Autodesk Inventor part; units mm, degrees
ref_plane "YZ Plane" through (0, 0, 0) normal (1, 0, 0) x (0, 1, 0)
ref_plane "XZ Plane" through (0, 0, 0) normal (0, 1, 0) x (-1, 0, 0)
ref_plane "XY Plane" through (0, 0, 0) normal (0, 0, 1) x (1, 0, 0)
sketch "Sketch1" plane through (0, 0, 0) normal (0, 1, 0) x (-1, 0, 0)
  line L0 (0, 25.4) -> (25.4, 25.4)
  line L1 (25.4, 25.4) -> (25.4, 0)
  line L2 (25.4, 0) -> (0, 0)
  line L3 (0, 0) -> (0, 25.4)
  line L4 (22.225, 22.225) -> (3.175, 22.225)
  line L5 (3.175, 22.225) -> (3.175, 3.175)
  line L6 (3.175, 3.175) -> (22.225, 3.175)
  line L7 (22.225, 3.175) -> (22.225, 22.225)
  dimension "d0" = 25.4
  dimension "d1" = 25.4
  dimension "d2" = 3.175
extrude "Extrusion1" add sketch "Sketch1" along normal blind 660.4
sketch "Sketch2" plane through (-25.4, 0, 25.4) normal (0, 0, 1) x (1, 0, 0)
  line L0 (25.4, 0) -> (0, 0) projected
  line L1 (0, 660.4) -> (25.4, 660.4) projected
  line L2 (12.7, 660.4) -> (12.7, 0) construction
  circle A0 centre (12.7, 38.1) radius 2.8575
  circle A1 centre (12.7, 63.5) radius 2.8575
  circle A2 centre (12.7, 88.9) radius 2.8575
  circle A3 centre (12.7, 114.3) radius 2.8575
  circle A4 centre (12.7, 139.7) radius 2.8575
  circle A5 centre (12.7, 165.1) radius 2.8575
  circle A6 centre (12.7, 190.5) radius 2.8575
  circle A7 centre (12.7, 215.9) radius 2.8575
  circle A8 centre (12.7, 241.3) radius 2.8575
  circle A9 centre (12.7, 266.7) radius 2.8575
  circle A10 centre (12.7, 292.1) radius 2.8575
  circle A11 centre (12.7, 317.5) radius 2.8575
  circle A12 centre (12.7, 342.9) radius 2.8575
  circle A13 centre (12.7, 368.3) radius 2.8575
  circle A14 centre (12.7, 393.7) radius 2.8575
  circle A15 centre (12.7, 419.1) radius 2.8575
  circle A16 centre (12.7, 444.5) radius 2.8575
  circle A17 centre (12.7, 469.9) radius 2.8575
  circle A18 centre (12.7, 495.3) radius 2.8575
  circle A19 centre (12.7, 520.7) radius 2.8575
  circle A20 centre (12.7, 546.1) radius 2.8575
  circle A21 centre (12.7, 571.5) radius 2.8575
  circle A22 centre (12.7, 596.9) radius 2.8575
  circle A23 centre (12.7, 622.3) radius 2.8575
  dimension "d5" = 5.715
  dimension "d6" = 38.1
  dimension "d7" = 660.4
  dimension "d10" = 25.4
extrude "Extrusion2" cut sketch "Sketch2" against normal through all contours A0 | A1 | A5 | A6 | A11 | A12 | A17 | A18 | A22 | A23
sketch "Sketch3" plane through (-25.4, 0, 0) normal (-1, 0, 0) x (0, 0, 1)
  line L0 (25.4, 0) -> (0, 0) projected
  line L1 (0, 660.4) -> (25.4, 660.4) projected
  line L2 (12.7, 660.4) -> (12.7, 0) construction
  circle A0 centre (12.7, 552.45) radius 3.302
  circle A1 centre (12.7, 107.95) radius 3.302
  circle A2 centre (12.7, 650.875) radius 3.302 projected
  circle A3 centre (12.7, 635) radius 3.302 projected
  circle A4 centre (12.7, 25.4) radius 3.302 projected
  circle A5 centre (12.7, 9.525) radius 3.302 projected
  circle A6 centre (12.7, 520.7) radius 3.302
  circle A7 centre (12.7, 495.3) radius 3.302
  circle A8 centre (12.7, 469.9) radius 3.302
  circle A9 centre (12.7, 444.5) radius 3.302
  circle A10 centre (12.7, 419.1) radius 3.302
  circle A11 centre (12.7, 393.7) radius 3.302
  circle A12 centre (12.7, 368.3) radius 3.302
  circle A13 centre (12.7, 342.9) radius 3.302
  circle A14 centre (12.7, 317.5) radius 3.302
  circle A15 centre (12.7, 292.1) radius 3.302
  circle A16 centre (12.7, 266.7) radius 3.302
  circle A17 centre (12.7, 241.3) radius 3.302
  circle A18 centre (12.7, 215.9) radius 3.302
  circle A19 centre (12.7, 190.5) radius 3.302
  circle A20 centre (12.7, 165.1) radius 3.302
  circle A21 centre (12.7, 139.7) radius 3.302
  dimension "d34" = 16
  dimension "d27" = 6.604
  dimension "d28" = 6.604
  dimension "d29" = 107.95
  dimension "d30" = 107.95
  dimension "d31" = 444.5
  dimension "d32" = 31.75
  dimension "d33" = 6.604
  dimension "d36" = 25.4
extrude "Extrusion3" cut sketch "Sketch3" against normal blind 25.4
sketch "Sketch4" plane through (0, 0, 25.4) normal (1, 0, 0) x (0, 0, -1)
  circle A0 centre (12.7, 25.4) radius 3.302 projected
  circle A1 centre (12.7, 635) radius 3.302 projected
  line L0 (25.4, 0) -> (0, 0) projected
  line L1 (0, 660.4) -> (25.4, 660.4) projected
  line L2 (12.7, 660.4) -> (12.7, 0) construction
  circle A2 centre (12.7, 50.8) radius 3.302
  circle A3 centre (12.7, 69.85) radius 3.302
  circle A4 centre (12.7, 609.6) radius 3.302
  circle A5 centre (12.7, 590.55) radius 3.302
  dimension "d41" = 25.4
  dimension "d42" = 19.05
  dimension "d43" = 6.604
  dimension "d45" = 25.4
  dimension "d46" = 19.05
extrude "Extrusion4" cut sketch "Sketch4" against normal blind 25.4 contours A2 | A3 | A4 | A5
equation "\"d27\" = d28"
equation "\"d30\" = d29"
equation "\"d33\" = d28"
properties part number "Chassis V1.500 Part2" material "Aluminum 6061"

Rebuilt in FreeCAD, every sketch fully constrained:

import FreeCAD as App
import Part
import Sketcher
from FreeCAD import Vector
Q = App.Units.Quantity

doc = App.newDocument("Part")
body = doc.addObject("PartDesign::Body", "Body")

# Sketch on XZ plane
sketch1 = doc.addObject("Sketcher::SketchObject", "Sketch")
body.addObject(sketch1)
sketch1.AttachmentSupport = (doc.XZ_Plane, [""])
sketch1.MapMode = "FlatFace"
sketch1.addGeometry(Part.LineSegment(Vector(-25.4, 25.4, 0), Vector(0, 25.4, 0)), False)
sketch1.addGeometry(Part.LineSegment(Vector(0, 25.4, 0), Vector(0, 0, 0)), False)
sketch1.addGeometry(Part.LineSegment(Vector(0, 0, 0), Vector(-25.4, 0, 0)), False)
sketch1.addGeometry(Part.LineSegment(Vector(-25.4, 0, 0), Vector(-25.4, 25.4, 0)), False)
sketch1.addGeometry(Part.LineSegment(Vector(-3.175, 22.225, 0), Vector(-22.225, 22.225, 0)), False)
sketch1.addGeometry(Part.LineSegment(Vector(-22.225, 22.225, 0), Vector(-22.225, 3.175, 0)), False)
sketch1.addGeometry(Part.LineSegment(Vector(-22.225, 3.175, 0), Vector(-3.175, 3.175, 0)), False)
sketch1.addGeometry(Part.LineSegment(Vector(-3.175, 3.175, 0), Vector(-3.175, 22.225, 0)), False)
sketch1.addConstraint(Sketcher.Constraint("Coincident", 0, 2, 1, 1))
sketch1.addConstraint(Sketcher.Constraint("Coincident", 1, 2, 2, 1))
sketch1.addConstraint(Sketcher.Constraint("Coincident", 2, 2, 3, 1))
sketch1.addConstraint(Sketcher.Constraint("Coincident", 3, 2, 0, 1))
sketch1.addConstraint(Sketcher.Constraint("Coincident", 4, 2, 5, 1))
sketch1.addConstraint(Sketcher.Constraint("Coincident", 5, 2, 6, 1))
sketch1.addConstraint(Sketcher.Constraint("Coincident", 6, 2, 7, 1))
sketch1.addConstraint(Sketcher.Constraint("Coincident", 7, 2, 4, 1))
sketch1.addConstraint(Sketcher.Constraint("Horizontal", 0))
sketch1.addConstraint(Sketcher.Constraint("Vertical", 1))
sketch1.addConstraint(Sketcher.Constraint("Horizontal", 2))
sketch1.addConstraint(Sketcher.Constraint("Vertical", 3))
sketch1.addConstraint(Sketcher.Constraint("Horizontal", 4))
sketch1.addConstraint(Sketcher.Constraint("Vertical", 5))
sketch1.addConstraint(Sketcher.Constraint("Horizontal", 6))
sketch1.addConstraint(Sketcher.Constraint("Vertical", 7))
sketch1.addConstraint(Sketcher.Constraint("Coincident", 1, 2, -1, 1))
sketch1.addConstraint(Sketcher.Constraint("Equal", 2, 1))
sketch1.addConstraint(Sketcher.Constraint("Equal", 6, 5))
sketch1.addConstraint(Sketcher.Constraint("DistanceX", 0, 1, 0, 2, Q("1 in")))
sketch1.addConstraint(Sketcher.Constraint("DistanceY", -1, 1, 5, 2, Q("0.125 in")))
sketch1.addConstraint(Sketcher.Constraint("DistanceX", 6, 2, -1, 1, Q("0.125 in")))
sketch1.addConstraint(Sketcher.Constraint("DistanceX", 3, 2, 4, 2, Q("0.125 in")))
pad1 = doc.addObject("PartDesign::Pad", "Pad")
body.addObject(pad1)
pad1.Profile = sketch1
pad1.Length = Q("26 in")
pad1.Reversed = True

# Sketch on XY plane
sketch2 = doc.addObject("Sketcher::SketchObject", "Sketch001")
body.addObject(sketch2)
sketch2.AttachmentSupport = (doc.XY_Plane, [""])
sketch2.MapMode = "FlatFace"
sketch2.AttachmentOffset = App.Placement(Vector(0, 0, 1 * 25.4), App.Rotation())
sketch2.addGeometry(Part.Circle(Vector(-12.7, 38.1, 0), Vector(0, 0, 1), 2.8575), False)
sketch2.addGeometry(Part.Circle(Vector(-12.7, 63.5, 0), Vector(0, 0, 1), 2.8575), False)
sketch2.addGeometry(Part.Circle(Vector(-12.7, 165.1, 0), Vector(0, 0, 1), 2.8575), False)
sketch2.addGeometry(Part.Circle(Vector(-12.7, 190.5, 0), Vector(0, 0, 1), 2.8575), False)
sketch2.addGeometry(Part.Circle(Vector(-12.7, 317.5, 0), Vector(0, 0, 1), 2.8575), False)
sketch2.addGeometry(Part.Circle(Vector(-12.7, 342.9, 0), Vector(0, 0, 1), 2.8575), False)
sketch2.addGeometry(Part.Circle(Vector(-12.7, 469.9, 0), Vector(0, 0, 1), 2.8575), False)
sketch2.addGeometry(Part.Circle(Vector(-12.7, 495.3, 0), Vector(0, 0, 1), 2.8575), False)
sketch2.addGeometry(Part.Circle(Vector(-12.7, 596.9, 0), Vector(0, 0, 1), 2.8575), False)
sketch2.addGeometry(Part.Circle(Vector(-12.7, 622.3, 0), Vector(0, 0, 1), 2.8575), False)
sketch2.addConstraint(Sketcher.Constraint("Equal", 0, 1))
sketch2.addConstraint(Sketcher.Constraint("Equal", 1, 2))
sketch2.addConstraint(Sketcher.Constraint("Equal", 2, 3))
sketch2.addConstraint(Sketcher.Constraint("Equal", 3, 4))
sketch2.addConstraint(Sketcher.Constraint("Equal", 4, 5))
sketch2.addConstraint(Sketcher.Constraint("Equal", 5, 6))
sketch2.addConstraint(Sketcher.Constraint("Equal", 6, 7))
sketch2.addConstraint(Sketcher.Constraint("Equal", 7, 8))
sketch2.addConstraint(Sketcher.Constraint("Equal", 8, 9))
sketch2.addConstraint(Sketcher.Constraint("Vertical", 0, 3, 1, 3))
sketch2.addConstraint(Sketcher.Constraint("Vertical", 1, 3, 2, 3))
sketch2.addConstraint(Sketcher.Constraint("Vertical", 2, 3, 3, 3))
sketch2.addConstraint(Sketcher.Constraint("Vertical", 3, 3, 4, 3))
sketch2.addConstraint(Sketcher.Constraint("Vertical", 4, 3, 5, 3))
sketch2.addConstraint(Sketcher.Constraint("Vertical", 5, 3, 6, 3))
sketch2.addConstraint(Sketcher.Constraint("Vertical", 6, 3, 7, 3))
sketch2.addConstraint(Sketcher.Constraint("Vertical", 7, 3, 8, 3))
sketch2.addConstraint(Sketcher.Constraint("Vertical", 8, 3, 9, 3))
sketch2.addConstraint(Sketcher.Constraint("Diameter", 0, Q("0.225 in")))
sketch2.addConstraint(Sketcher.Constraint("DistanceY", 0, 3, 1, 3, Q("1 in")))
sketch2.addConstraint(Sketcher.Constraint("DistanceY", 2, 3, 3, 3, Q("1 in")))
sketch2.addConstraint(Sketcher.Constraint("DistanceY", 4, 3, 5, 3, Q("1 in")))
sketch2.addConstraint(Sketcher.Constraint("DistanceY", 6, 3, 7, 3, Q("1 in")))
sketch2.addConstraint(Sketcher.Constraint("DistanceY", 8, 3, 9, 3, Q("1 in")))
sketch2.addConstraint(Sketcher.Constraint("DistanceY", -1, 1, 0, 3, Q("1.5 in")))
sketch2.addConstraint(Sketcher.Constraint("DistanceY", 1, 3, 2, 3, Q("4 in")))
sketch2.addConstraint(Sketcher.Constraint("DistanceY", 3, 3, 4, 3, Q("5 in")))
sketch2.addConstraint(Sketcher.Constraint("DistanceY", 5, 3, 6, 3, Q("5 in")))
sketch2.addConstraint(Sketcher.Constraint("DistanceY", 7, 3, 8, 3, Q("4 in")))
sketch2.addConstraint(Sketcher.Constraint("DistanceX", 0, 3, -1, 1, Q("0.5 in")))
pocket1 = doc.addObject("PartDesign::Pocket", "Pocket")
body.addObject(pocket1)
pocket1.Profile = sketch2
pocket1.Type = "ThroughAll"

# Sketch on YZ plane
sketch3 = doc.addObject("Sketcher::SketchObject", "Sketch002")
body.addObject(sketch3)
sketch3.AttachmentSupport = (doc.YZ_Plane, [""])
sketch3.MapMode = "FlatFace"
sketch3.AttachmentOffset = App.Placement(Vector(0, 0, -1 * 25.4), App.Rotation())
sketch3.addGeometry(Part.Circle(Vector(552.45, 12.7, 0), Vector(0, 0, 1), 3.302), False)
sketch3.addGeometry(Part.Circle(Vector(107.95, 12.7, 0), Vector(0, 0, 1), 3.302), False)
sketch3.addGeometry(Part.Circle(Vector(650.875, 12.7, 0), Vector(0, 0, 1), 3.302), False)
sketch3.addGeometry(Part.Circle(Vector(635, 12.7, 0), Vector(0, 0, 1), 3.302), False)
sketch3.addGeometry(Part.Circle(Vector(25.4, 12.7, 0), Vector(0, 0, 1), 3.302), False)
sketch3.addGeometry(Part.Circle(Vector(9.525, 12.7, 0), Vector(0, 0, 1), 3.302), False)
sketch3.addGeometry(Part.Circle(Vector(520.7, 12.7, 0), Vector(0, 0, 1), 3.302), False)
sketch3.addGeometry(Part.Circle(Vector(495.3, 12.7, 0), Vector(0, 0, 1), 3.302), False)
sketch3.addGeometry(Part.Circle(Vector(469.9, 12.7, 0), Vector(0, 0, 1), 3.302), False)
sketch3.addGeometry(Part.Circle(Vector(444.5, 12.7, 0), Vector(0, 0, 1), 3.302), False)
sketch3.addGeometry(Part.Circle(Vector(419.1, 12.7, 0), Vector(0, 0, 1), 3.302), False)
sketch3.addGeometry(Part.Circle(Vector(393.7, 12.7, 0), Vector(0, 0, 1), 3.302), False)
sketch3.addGeometry(Part.Circle(Vector(368.3, 12.7, 0), Vector(0, 0, 1), 3.302), False)
sketch3.addGeometry(Part.Circle(Vector(342.9, 12.7, 0), Vector(0, 0, 1), 3.302), False)
sketch3.addGeometry(Part.Circle(Vector(317.5, 12.7, 0), Vector(0, 0, 1), 3.302), False)
sketch3.addGeometry(Part.Circle(Vector(292.1, 12.7, 0), Vector(0, 0, 1), 3.302), False)
sketch3.addGeometry(Part.Circle(Vector(266.7, 12.7, 0), Vector(0, 0, 1), 3.302), False)
sketch3.addGeometry(Part.Circle(Vector(241.3, 12.7, 0), Vector(0, 0, 1), 3.302), False)
sketch3.addGeometry(Part.Circle(Vector(215.9, 12.7, 0), Vector(0, 0, 1), 3.302), False)
sketch3.addGeometry(Part.Circle(Vector(190.5, 12.7, 0), Vector(0, 0, 1), 3.302), False)
sketch3.addGeometry(Part.Circle(Vector(165.1, 12.7, 0), Vector(0, 0, 1), 3.302), False)
sketch3.addGeometry(Part.Circle(Vector(139.7, 12.7, 0), Vector(0, 0, 1), 3.302), False)
sketch3.addConstraint(Sketcher.Constraint("Equal", 0, 1))
sketch3.addConstraint(Sketcher.Constraint("Equal", 1, 2))
sketch3.addConstraint(Sketcher.Constraint("Equal", 2, 3))
sketch3.addConstraint(Sketcher.Constraint("Equal", 3, 4))
sketch3.addConstraint(Sketcher.Constraint("Equal", 4, 5))
sketch3.addConstraint(Sketcher.Constraint("Equal", 5, 6))
sketch3.addConstraint(Sketcher.Constraint("Equal", 6, 7))
sketch3.addConstraint(Sketcher.Constraint("Equal", 7, 8))
sketch3.addConstraint(Sketcher.Constraint("Equal", 8, 9))
sketch3.addConstraint(Sketcher.Constraint("Equal", 9, 10))
sketch3.addConstraint(Sketcher.Constraint("Equal", 10, 11))
sketch3.addConstraint(Sketcher.Constraint("Equal", 11, 12))
sketch3.addConstraint(Sketcher.Constraint("Equal", 12, 13))
sketch3.addConstraint(Sketcher.Constraint("Equal", 13, 14))
sketch3.addConstraint(Sketcher.Constraint("Equal", 14, 15))
sketch3.addConstraint(Sketcher.Constraint("Equal", 15, 16))
sketch3.addConstraint(Sketcher.Constraint("Equal", 16, 17))
sketch3.addConstraint(Sketcher.Constraint("Equal", 17, 18))
sketch3.addConstraint(Sketcher.Constraint("Equal", 18, 19))
sketch3.addConstraint(Sketcher.Constraint("Equal", 19, 20))
sketch3.addConstraint(Sketcher.Constraint("Equal", 20, 21))
sketch3.addConstraint(Sketcher.Constraint("Horizontal", 0, 3, 1, 3))
sketch3.addConstraint(Sketcher.Constraint("Horizontal", 1, 3, 2, 3))
sketch3.addConstraint(Sketcher.Constraint("Horizontal", 2, 3, 3, 3))
sketch3.addConstraint(Sketcher.Constraint("Horizontal", 3, 3, 4, 3))
sketch3.addConstraint(Sketcher.Constraint("Horizontal", 4, 3, 5, 3))
sketch3.addConstraint(Sketcher.Constraint("Horizontal", 5, 3, 6, 3))
sketch3.addConstraint(Sketcher.Constraint("Horizontal", 6, 3, 7, 3))
sketch3.addConstraint(Sketcher.Constraint("Horizontal", 7, 3, 8, 3))
sketch3.addConstraint(Sketcher.Constraint("Horizontal", 8, 3, 9, 3))
sketch3.addConstraint(Sketcher.Constraint("Horizontal", 9, 3, 10, 3))
sketch3.addConstraint(Sketcher.Constraint("Horizontal", 10, 3, 11, 3))
sketch3.addConstraint(Sketcher.Constraint("Horizontal", 11, 3, 12, 3))
sketch3.addConstraint(Sketcher.Constraint("Horizontal", 12, 3, 13, 3))
sketch3.addConstraint(Sketcher.Constraint("Horizontal", 13, 3, 14, 3))
sketch3.addConstraint(Sketcher.Constraint("Horizontal", 14, 3, 15, 3))
sketch3.addConstraint(Sketcher.Constraint("Horizontal", 15, 3, 16, 3))
sketch3.addConstraint(Sketcher.Constraint("Horizontal", 16, 3, 17, 3))
sketch3.addConstraint(Sketcher.Constraint("Horizontal", 17, 3, 18, 3))
sketch3.addConstraint(Sketcher.Constraint("Horizontal", 18, 3, 19, 3))
sketch3.addConstraint(Sketcher.Constraint("Horizontal", 19, 3, 20, 3))
sketch3.addConstraint(Sketcher.Constraint("Horizontal", 20, 3, 21, 3))
sketch3.addConstraint(Sketcher.Constraint("Diameter", 0, Q("0.26 in")))
sketch3.addConstraint(Sketcher.Constraint("DistanceX", -1, 1, 4, 3, Q("1 in")))
sketch3.addConstraint(Sketcher.Constraint("DistanceX", 7, 3, 6, 3, Q("1 in")))
sketch3.addConstraint(Sketcher.Constraint("DistanceX", 8, 3, 7, 3, Q("1 in")))
sketch3.addConstraint(Sketcher.Constraint("DistanceX", 9, 3, 8, 3, Q("1 in")))
sketch3.addConstraint(Sketcher.Constraint("DistanceX", 10, 3, 9, 3, Q("1 in")))
sketch3.addConstraint(Sketcher.Constraint("DistanceX", 11, 3, 10, 3, Q("1 in")))
sketch3.addConstraint(Sketcher.Constraint("DistanceX", 12, 3, 11, 3, Q("1 in")))
sketch3.addConstraint(Sketcher.Constraint("DistanceX", 13, 3, 12, 3, Q("1 in")))
sketch3.addConstraint(Sketcher.Constraint("DistanceX", 14, 3, 13, 3, Q("1 in")))
sketch3.addConstraint(Sketcher.Constraint("DistanceX", 15, 3, 14, 3, Q("1 in")))
sketch3.addConstraint(Sketcher.Constraint("DistanceX", 16, 3, 15, 3, Q("1 in")))
sketch3.addConstraint(Sketcher.Constraint("DistanceX", 17, 3, 16, 3, Q("1 in")))
sketch3.addConstraint(Sketcher.Constraint("DistanceX", 18, 3, 17, 3, Q("1 in")))
sketch3.addConstraint(Sketcher.Constraint("DistanceX", 19, 3, 18, 3, Q("1 in")))
sketch3.addConstraint(Sketcher.Constraint("DistanceX", 20, 3, 19, 3, Q("1 in")))
sketch3.addConstraint(Sketcher.Constraint("DistanceX", 21, 3, 20, 3, Q("1 in")))
sketch3.addConstraint(Sketcher.Constraint("DistanceX", -1, 1, 9, 3, Q("17.5 in")))
sketch3.addConstraint(Sketcher.Constraint("DistanceX", 1, 3, 0, 3, Q("17.5 in")))
sketch3.addConstraint(Sketcher.Constraint("DistanceX", -1, 1, 1, 3, Q("4.25 in")))
sketch3.addConstraint(Sketcher.Constraint("DistanceX", -1, 1, 3, 3, Q("25 in")))
sketch3.addConstraint(Sketcher.Constraint("DistanceY", -1, 1, 0, 3, Q("0.5 in")))
sketch3.addConstraint(Sketcher.Constraint("DistanceX", 5, 3, 2, 3, Q("25.25 in")))
sketch3.addConstraint(Sketcher.Constraint("DistanceX", -1, 1, 2, 3, Q("25.625 in")))
pocket2 = doc.addObject("PartDesign::Pocket", "Pocket001")
body.addObject(pocket2)
pocket2.Profile = sketch3
pocket2.Length = Q("1 in")
pocket2.Reversed = True

# Sketch on YZ plane
sketch4 = doc.addObject("Sketcher::SketchObject", "Sketch003")
body.addObject(sketch4)
sketch4.AttachmentSupport = (doc.YZ_Plane, [""])
sketch4.MapMode = "FlatFace"
sketch4.addGeometry(Part.Circle(Vector(50.8, 12.7, 0), Vector(0, 0, 1), 3.302), False)
sketch4.addGeometry(Part.Circle(Vector(69.85, 12.7, 0), Vector(0, 0, 1), 3.302), False)
sketch4.addGeometry(Part.Circle(Vector(609.6, 12.7, 0), Vector(0, 0, 1), 3.302), False)
sketch4.addGeometry(Part.Circle(Vector(590.55, 12.7, 0), Vector(0, 0, 1), 3.302), False)
sketch4.addConstraint(Sketcher.Constraint("Equal", 0, 1))
sketch4.addConstraint(Sketcher.Constraint("Equal", 1, 2))
sketch4.addConstraint(Sketcher.Constraint("Equal", 2, 3))
sketch4.addConstraint(Sketcher.Constraint("Horizontal", 0, 3, 1, 3))
sketch4.addConstraint(Sketcher.Constraint("Horizontal", 1, 3, 2, 3))
sketch4.addConstraint(Sketcher.Constraint("Horizontal", 2, 3, 3, 3))
sketch4.addConstraint(Sketcher.Constraint("Diameter", 0, Q("0.26 in")))
sketch4.addConstraint(Sketcher.Constraint("DistanceX", 0, 3, 1, 3, Q("0.75 in")))
sketch4.addConstraint(Sketcher.Constraint("DistanceX", 3, 3, 2, 3, Q("0.75 in")))
sketch4.addConstraint(Sketcher.Constraint("DistanceX", -1, 1, 0, 3, Q("2 in")))
sketch4.addConstraint(Sketcher.Constraint("DistanceX", -1, 1, 2, 3, Q("24 in")))
sketch4.addConstraint(Sketcher.Constraint("DistanceY", -1, 1, 0, 3, Q("0.5 in")))
pocket3 = doc.addObject("PartDesign::Pocket", "Pocket002")
body.addObject(pocket3)
pocket3.Profile = sketch4
pocket3.Length = Q("1 in")

doc.recompute()
